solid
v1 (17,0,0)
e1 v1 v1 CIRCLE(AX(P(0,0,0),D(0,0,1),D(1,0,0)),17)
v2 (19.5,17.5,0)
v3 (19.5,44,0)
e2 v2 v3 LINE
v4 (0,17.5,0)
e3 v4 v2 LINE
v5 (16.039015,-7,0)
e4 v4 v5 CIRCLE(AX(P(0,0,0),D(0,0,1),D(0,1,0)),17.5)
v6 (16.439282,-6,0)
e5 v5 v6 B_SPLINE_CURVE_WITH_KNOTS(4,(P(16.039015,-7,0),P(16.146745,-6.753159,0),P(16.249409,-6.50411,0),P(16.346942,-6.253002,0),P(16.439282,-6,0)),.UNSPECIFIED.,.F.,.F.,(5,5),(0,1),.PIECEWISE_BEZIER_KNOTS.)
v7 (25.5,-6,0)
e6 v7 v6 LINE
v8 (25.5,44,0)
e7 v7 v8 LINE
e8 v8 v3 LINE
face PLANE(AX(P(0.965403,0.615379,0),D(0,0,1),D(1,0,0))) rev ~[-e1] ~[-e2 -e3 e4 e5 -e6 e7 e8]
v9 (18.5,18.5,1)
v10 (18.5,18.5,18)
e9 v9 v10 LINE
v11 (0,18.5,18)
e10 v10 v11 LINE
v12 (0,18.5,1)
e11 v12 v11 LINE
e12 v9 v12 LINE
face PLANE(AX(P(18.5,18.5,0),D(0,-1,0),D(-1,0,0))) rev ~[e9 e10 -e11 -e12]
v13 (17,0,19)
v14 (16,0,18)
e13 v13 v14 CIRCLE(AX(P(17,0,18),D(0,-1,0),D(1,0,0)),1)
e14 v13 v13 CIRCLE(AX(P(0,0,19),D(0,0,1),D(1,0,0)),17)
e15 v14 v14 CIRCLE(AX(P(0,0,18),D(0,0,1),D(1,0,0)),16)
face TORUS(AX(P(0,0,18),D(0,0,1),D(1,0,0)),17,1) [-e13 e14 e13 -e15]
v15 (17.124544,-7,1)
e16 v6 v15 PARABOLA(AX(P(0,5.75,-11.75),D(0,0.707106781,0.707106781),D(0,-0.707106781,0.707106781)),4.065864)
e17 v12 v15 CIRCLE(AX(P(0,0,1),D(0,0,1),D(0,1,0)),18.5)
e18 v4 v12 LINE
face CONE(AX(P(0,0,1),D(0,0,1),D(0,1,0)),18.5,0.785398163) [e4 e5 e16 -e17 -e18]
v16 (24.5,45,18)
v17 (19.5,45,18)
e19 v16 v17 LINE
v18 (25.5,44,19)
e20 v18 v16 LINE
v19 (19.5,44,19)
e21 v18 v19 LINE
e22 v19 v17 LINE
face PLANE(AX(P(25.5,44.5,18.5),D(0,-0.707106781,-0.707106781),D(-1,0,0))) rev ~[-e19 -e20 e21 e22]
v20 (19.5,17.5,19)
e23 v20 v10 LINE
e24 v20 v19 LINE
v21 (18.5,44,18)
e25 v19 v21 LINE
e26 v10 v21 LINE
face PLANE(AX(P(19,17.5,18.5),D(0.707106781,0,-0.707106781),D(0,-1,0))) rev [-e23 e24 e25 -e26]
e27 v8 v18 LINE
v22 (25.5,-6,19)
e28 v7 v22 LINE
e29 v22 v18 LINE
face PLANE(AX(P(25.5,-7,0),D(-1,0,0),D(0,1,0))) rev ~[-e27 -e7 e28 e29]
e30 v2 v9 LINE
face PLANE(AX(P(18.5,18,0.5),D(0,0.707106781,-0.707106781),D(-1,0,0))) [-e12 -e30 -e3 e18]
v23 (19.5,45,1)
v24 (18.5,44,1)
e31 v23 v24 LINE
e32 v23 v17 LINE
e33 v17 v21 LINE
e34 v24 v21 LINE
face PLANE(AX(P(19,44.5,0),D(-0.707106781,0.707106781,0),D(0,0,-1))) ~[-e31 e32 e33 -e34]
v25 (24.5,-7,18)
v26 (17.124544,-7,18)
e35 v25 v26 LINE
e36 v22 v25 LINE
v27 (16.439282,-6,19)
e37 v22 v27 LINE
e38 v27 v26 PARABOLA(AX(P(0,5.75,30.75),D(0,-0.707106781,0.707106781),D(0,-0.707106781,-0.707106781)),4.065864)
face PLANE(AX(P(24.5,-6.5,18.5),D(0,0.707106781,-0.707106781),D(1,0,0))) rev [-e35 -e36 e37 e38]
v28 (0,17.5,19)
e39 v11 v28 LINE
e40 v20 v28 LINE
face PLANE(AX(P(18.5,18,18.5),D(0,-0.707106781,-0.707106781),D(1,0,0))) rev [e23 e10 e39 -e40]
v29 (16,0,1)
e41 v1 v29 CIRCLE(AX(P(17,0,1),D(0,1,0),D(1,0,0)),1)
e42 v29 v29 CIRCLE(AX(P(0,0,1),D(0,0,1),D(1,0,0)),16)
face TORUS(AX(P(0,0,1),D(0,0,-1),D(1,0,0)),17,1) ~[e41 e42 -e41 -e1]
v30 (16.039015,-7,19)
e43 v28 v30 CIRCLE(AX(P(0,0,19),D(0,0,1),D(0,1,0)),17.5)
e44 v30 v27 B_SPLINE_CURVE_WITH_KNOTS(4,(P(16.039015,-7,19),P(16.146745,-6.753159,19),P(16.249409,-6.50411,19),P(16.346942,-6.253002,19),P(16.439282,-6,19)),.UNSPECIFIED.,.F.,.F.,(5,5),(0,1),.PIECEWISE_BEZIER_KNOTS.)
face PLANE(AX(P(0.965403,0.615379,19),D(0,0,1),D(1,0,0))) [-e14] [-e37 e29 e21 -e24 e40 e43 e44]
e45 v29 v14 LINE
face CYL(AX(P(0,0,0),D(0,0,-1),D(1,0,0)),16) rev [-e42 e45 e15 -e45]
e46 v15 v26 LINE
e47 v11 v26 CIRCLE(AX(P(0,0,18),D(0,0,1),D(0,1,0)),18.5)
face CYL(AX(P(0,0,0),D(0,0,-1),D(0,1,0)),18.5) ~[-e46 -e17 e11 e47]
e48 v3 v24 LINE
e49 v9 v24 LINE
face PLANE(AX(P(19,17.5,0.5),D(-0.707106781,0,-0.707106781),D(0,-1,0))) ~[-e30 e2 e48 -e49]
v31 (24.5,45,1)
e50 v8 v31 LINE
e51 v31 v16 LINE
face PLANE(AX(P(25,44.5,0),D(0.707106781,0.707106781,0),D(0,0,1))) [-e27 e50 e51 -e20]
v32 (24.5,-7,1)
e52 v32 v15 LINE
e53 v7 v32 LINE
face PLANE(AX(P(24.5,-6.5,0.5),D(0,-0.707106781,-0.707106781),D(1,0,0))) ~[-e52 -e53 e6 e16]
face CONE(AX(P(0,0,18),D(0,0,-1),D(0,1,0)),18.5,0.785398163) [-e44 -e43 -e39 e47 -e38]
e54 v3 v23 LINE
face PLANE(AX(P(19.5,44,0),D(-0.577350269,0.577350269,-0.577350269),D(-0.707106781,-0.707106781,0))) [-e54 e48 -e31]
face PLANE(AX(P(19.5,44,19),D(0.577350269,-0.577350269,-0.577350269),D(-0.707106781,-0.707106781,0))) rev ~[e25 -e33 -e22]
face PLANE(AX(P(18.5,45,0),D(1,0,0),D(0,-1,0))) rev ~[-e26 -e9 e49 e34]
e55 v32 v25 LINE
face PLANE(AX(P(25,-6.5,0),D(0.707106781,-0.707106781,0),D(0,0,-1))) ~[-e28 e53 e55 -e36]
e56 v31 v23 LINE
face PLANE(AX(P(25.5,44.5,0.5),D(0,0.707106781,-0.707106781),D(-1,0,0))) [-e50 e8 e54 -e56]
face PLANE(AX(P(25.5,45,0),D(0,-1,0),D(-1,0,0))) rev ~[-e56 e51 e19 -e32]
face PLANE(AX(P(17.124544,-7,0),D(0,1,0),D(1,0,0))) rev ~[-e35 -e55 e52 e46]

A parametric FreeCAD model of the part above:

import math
import FreeCAD as App
import Part
import Sketcher

V = App.Vector


def edges_at(feature, points):
    """Names of the edges that pass closest to the given points."""
    edges = feature.Shape.Edges
    near = lambda p: min(range(len(edges)), key=lambda i: edges[i].distToShape(Part.Vertex(*p))[0])
    return sorted({f"Edge{near(p) + 1}" for p in points})

doc = App.newDocument("Part")
params = doc.addObject("Spreadsheet::Sheet", "Params")
for row, (alias, value) in enumerate([
    ("sketch1_diameter", "32 mm"),
    ("sketch1_radius", "18.5 mm"),
    ("sketch1_width", "7 mm"),
    ("sketch1_height", "52 mm"),
    ("sketch1_width2", "18.5 mm"),
    ("pad1_length", "19 mm"),
    ("chamfer_size", "1 mm"),
    ("fillet_radius", "1 mm"),
    ("chamfer2_size", "1 mm"),
    ("chamfer3_size", "1 mm"),
], start=1):
    params.set(f"A{row}", alias)
    params.set(f"B{row}", "=" + value)
    params.setAlias(f"B{row}", alias)

body = doc.addObject("PartDesign::Body", "Body")

# Sketch on XY plane
sketch1 = doc.addObject("Sketcher::SketchObject", "Sketch")
body.addObject(sketch1)
sketch1.AttachmentSupport = (doc.XY_Plane, [""])
sketch1.MapMode = "FlatFace"
sketch1.addGeometry([
    Part.LineSegment(V(26, 45, 0), V(18, 45, 0)),  # 0
    Part.LineSegment(V(18, 45, 0), V(18, 18, 0)),  # 1
    Part.LineSegment(V(18, 18, 0), V(0, 18, 0)),  # 2
    Part.ArcOfCircle(Part.Circle(V(0, 0, 0), V(0, 0, 1), 18), math.radians(90), math.radians(338)),  # 3
    Part.LineSegment(V(17, -7, 0), V(26, -7, 0)),  # 4
    Part.LineSegment(V(26, -7, 0), V(26, 45, 0)),  # 5
    Part.Circle(V(0, 0, 0), V(0, 0, 1), 16),  # 6
], False)
sketch1.addConstraint([
    Sketcher.Constraint("Coincident", 0, 2, 1, 1),
    Sketcher.Constraint("Coincident", 1, 2, 2, 1),
    Sketcher.Constraint("Tangent", 2, 2, 3, 1),
    Sketcher.Constraint("Coincident", 3, 2, 4, 1),
    Sketcher.Constraint("Coincident", 4, 2, 5, 1),
    Sketcher.Constraint("Coincident", 5, 2, 0, 1),
    Sketcher.Constraint("Horizontal", 0),
    Sketcher.Constraint("Vertical", 1),
    Sketcher.Constraint("Horizontal", 2),
    Sketcher.Constraint("Horizontal", 4),
    Sketcher.Constraint("Vertical", 5),
    Sketcher.Constraint("Coincident", 3, 3, -1, 1),
    Sketcher.Constraint("Coincident", 6, 3, -1, 1),
    Sketcher.Constraint("Diameter", 6, 32.0),
    Sketcher.Constraint("Radius", 3, 18.5),
    Sketcher.Constraint("DistanceX", 0, 2, 0, 1, 7.0),
    Sketcher.Constraint("DistanceY", 5, 1, 5, 2, 52.0),
    Sketcher.Constraint("DistanceX", 2, 2, 2, 1, 18.5),
    Sketcher.Constraint("DistanceY", 1, 2, 1, 1, 26.5),
])
sketch1.setExpression("Constraints[13]", "Params.sketch1_diameter")
sketch1.setExpression("Constraints[14]", "Params.sketch1_radius")
sketch1.setExpression("Constraints[15]", "Params.sketch1_width")
sketch1.setExpression("Constraints[16]", "Params.sketch1_height")
sketch1.setExpression("Constraints[17]", "Params.sketch1_width2")
pad1 = doc.addObject("PartDesign::Pad", "Pad")
body.addObject(pad1)
pad1.Profile = sketch1
pad1.setExpression("Length", "Params.pad1_length")
doc.recompute()

chamfer = doc.addObject("PartDesign::Chamfer", "Chamfer")
body.addObject(chamfer)
chamfer.Base = (pad1, edges_at(pad1, [(25.5, -7, 9.5)]))
chamfer.setExpression("Size", "Params.chamfer_size")
doc.recompute()

fillet = doc.addObject("PartDesign::Fillet", "Fillet")
body.addObject(fillet)
fillet.Base = (chamfer, edges_at(chamfer, [(-16, 0, 19), (-16, 0, 0)]))
fillet.setExpression("Radius", "Params.fillet_radius")
doc.recompute()

chamfer2 = doc.addObject("PartDesign::Chamfer", "Chamfer001")
body.addObject(chamfer2)
chamfer2.Base = (fillet, edges_at(fillet, [
    (9.25, 18.5, 19),
    (-15.358, -10.314, 19),
    (-15.358, -10.314, 0),
    (9.25, 18.5, 0),
]))
chamfer2.setExpression("Size", "Params.chamfer2_size")
doc.recompute()

chamfer3 = doc.addObject("PartDesign::Chamfer", "Chamfer002")
body.addObject(chamfer3)
chamfer3.Base = (chamfer2, edges_at(chamfer2, [
    (18.5, 45, 9.5),
    (22, 45, 0),
    (22, 45, 19),
    (25.5, 45, 9.5),
    (18.5, 31.25, 19),
    (18.5, 31.25, 0),
    (20.27, -7, 19),
    (20.27, -7, 0),
]))
chamfer3.setExpression("Size", "Params.chamfer3_size")

doc.recompute()
